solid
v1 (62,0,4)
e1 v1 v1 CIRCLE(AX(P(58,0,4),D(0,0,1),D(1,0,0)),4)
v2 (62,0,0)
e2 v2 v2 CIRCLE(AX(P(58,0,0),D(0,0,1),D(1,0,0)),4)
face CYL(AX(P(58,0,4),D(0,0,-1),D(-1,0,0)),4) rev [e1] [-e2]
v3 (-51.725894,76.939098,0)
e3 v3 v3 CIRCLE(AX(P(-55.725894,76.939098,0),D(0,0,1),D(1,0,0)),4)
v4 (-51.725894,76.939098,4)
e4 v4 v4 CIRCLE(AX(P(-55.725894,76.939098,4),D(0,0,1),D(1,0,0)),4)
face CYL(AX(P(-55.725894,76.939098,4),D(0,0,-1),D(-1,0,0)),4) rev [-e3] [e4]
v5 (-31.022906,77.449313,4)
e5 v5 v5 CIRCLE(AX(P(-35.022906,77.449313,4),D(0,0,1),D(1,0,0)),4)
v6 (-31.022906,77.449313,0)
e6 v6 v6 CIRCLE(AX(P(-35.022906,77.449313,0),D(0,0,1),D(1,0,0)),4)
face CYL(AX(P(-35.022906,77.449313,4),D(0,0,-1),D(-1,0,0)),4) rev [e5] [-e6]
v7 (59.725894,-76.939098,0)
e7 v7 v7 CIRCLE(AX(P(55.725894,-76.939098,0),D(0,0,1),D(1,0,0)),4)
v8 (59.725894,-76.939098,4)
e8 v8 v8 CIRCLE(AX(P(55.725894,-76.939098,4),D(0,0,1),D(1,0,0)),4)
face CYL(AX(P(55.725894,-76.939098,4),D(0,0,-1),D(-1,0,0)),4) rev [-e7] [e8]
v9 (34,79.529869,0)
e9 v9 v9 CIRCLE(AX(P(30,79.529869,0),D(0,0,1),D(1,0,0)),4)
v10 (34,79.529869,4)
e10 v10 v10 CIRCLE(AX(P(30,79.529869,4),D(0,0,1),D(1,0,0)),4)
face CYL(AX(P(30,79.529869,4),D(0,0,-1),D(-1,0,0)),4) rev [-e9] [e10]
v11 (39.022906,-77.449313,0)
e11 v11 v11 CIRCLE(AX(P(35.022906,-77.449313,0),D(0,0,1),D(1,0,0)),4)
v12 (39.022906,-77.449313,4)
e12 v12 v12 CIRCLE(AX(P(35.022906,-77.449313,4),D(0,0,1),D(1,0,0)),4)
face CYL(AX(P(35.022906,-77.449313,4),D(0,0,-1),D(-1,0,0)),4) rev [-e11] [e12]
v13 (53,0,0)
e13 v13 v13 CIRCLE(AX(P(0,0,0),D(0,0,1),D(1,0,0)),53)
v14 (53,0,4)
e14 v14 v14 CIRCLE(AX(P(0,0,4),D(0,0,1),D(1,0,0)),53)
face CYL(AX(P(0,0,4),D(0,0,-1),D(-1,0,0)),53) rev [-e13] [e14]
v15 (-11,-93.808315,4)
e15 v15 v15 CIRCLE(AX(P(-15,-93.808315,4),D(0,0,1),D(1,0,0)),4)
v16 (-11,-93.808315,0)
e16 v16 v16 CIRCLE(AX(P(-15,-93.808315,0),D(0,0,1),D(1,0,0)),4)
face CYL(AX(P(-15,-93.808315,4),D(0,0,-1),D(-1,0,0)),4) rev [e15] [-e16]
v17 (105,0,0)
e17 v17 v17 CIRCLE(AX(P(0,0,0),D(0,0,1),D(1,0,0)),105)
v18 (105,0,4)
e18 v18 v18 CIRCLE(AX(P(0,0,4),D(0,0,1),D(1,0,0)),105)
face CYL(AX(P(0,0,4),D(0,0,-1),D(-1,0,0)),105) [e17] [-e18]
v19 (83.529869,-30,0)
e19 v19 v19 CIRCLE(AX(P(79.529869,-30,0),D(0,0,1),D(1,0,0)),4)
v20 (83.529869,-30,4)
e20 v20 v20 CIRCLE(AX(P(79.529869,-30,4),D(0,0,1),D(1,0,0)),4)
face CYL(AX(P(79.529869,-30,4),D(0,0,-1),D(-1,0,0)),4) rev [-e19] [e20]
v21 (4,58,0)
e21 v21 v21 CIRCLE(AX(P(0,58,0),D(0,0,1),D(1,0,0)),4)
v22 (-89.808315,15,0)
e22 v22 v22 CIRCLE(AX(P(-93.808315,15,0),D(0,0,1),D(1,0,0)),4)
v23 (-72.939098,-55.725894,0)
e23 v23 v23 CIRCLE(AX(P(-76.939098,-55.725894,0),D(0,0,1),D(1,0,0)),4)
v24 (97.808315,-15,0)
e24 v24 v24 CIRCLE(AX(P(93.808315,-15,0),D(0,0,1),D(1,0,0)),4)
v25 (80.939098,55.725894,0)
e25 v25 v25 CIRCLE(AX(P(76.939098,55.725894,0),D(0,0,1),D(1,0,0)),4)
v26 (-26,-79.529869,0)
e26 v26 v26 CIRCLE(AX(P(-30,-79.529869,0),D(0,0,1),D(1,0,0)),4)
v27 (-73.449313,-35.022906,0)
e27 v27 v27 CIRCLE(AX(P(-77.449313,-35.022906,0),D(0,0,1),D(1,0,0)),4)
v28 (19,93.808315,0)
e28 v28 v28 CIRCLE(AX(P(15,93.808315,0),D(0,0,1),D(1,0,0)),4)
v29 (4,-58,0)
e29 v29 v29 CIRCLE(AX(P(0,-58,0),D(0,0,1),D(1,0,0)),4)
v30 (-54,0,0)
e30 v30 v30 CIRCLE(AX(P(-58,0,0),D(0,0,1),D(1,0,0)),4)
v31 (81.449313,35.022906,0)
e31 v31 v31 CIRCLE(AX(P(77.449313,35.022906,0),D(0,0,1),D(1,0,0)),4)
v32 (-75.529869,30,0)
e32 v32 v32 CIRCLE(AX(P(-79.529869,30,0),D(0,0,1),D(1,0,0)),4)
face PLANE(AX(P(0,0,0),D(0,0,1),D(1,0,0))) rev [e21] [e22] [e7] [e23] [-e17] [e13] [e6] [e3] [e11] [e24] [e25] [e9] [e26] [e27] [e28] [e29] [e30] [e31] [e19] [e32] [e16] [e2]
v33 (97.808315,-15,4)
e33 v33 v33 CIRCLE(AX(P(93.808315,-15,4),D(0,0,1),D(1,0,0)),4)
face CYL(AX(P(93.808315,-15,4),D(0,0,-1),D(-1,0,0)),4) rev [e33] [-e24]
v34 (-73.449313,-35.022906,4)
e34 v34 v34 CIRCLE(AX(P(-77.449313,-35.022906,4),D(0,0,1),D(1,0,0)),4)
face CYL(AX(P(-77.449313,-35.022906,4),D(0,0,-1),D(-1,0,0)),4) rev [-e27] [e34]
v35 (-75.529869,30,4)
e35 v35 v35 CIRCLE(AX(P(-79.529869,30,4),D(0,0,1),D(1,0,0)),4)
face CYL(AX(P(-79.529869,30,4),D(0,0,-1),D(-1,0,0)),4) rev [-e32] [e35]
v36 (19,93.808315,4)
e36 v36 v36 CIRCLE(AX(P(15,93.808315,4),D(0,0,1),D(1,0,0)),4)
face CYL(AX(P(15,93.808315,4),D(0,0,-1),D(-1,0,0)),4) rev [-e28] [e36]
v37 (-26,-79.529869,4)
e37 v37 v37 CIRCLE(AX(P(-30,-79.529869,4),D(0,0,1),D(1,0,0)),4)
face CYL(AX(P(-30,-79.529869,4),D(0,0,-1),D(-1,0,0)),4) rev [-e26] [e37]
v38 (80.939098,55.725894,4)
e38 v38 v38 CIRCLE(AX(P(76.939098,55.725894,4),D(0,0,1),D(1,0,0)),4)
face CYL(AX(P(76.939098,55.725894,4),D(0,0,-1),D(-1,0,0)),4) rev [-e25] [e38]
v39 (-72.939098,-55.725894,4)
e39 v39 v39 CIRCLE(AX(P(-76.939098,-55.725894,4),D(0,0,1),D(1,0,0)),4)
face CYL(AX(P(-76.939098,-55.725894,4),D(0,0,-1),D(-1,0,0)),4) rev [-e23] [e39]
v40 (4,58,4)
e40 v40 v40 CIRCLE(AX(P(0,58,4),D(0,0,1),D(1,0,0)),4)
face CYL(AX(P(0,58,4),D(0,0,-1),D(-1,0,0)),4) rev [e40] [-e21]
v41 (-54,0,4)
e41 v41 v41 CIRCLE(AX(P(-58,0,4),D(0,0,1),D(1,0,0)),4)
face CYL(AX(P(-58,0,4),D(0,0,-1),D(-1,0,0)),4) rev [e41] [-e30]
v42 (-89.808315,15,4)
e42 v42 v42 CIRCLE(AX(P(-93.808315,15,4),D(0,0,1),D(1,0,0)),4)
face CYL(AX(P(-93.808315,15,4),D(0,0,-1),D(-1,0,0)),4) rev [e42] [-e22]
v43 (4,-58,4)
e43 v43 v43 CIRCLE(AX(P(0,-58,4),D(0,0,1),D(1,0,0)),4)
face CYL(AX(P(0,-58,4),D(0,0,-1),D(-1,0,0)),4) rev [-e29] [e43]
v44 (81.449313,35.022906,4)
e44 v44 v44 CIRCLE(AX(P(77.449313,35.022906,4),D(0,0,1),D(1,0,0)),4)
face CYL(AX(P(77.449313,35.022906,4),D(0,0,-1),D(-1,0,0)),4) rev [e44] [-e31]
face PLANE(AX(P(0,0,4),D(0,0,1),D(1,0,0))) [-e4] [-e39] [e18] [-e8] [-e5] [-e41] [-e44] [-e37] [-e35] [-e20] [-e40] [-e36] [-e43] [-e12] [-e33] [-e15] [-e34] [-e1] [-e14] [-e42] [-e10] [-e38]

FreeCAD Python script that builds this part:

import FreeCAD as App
import Part
import Sketcher

V = App.Vector
Q = App.Units.Quantity

doc = App.newDocument("Part")
body = doc.addObject("PartDesign::Body", "Body")

# Sketch on XY plane
sketch1 = doc.addObject("Sketcher::SketchObject", "Sketch")
body.addObject(sketch1)
sketch1.AttachmentSupport = (doc.XY_Plane, [""])
sketch1.MapMode = "FlatFace"
sketch1.addGeometry(Part.Circle(V(0, 0, 0), V(0, 0, 1), 105), False)
sketch1.addGeometry(Part.Circle(V(-76.9, -55.7, 0), V(0, 0, 1), 4), False)
sketch1.addGeometry(Part.Circle(V(-30, -79.5, 0), V(0, 0, 1), 4), False)
sketch1.addGeometry(Part.Circle(V(-15, -93.8, 0), V(0, 0, 1), 4), False)
sketch1.addGeometry(Part.Circle(V(-77.4, -35, 0), V(0, 0, 1), 4), False)
sketch1.addGeometry(Part.Circle(V(35, -77.4, 0), V(0, 0, 1), 4), False)
sketch1.addGeometry(Part.Circle(V(0, -58, 0), V(0, 0, 1), 4), False)
sketch1.addGeometry(Part.Circle(V(55.7, -76.9, 0), V(0, 0, 1), 4), False)
sketch1.addGeometry(Part.Circle(V(79.5, -30, 0), V(0, 0, 1), 4), False)
sketch1.addGeometry(Part.Circle(V(93.8, -15, 0), V(0, 0, 1), 4), False)
sketch1.addGeometry(Part.Circle(V(-93.8, 15, 0), V(0, 0, 1), 4), False)
sketch1.addGeometry(Part.Circle(V(-58, 0, 0), V(0, 0, 1), 4), False)
sketch1.addGeometry(Part.Circle(V(-79.5, 30, 0), V(0, 0, 1), 4), False)
sketch1.addGeometry(Part.Circle(V(-55.7, 76.9, 0), V(0, 0, 1), 4), False)
sketch1.addGeometry(Part.Circle(V(-35, 77.4, 0), V(0, 0, 1), 4), False)
sketch1.addGeometry(Part.Circle(V(0, 0, 0), V(0, 0, 1), 53), False)
sketch1.addGeometry(Part.Circle(V(58, 0, 0), V(0, 0, 1), 4), False)
sketch1.addGeometry(Part.Circle(V(77.4, 35, 0), V(0, 0, 1), 4), False)
sketch1.addGeometry(Part.Circle(V(0, 58, 0), V(0, 0, 1), 4), False)
sketch1.addGeometry(Part.Circle(V(15, 93.8, 0), V(0, 0, 1), 4), False)
sketch1.addGeometry(Part.Circle(V(30, 79.5, 0), V(0, 0, 1), 4), False)
sketch1.addGeometry(Part.Circle(V(76.9, 55.7, 0), V(0, 0, 1), 4), False)
sketch1.addConstraint(Sketcher.Constraint("Coincident", 0, 3, -1, 1))
sketch1.addConstraint(Sketcher.Constraint("Coincident", 15, 3, -1, 1))
sketch1.addConstraint(Sketcher.Constraint("Equal", 1, 2))
sketch1.addConstraint(Sketcher.Constraint("Equal", 2, 3))
sketch1.addConstraint(Sketcher.Constraint("Equal", 3, 4))
sketch1.addConstraint(Sketcher.Constraint("Equal", 4, 5))
sketch1.addConstraint(Sketcher.Constraint("Equal", 5, 6))
sketch1.addConstraint(Sketcher.Constraint("Equal", 6, 7))
sketch1.addConstraint(Sketcher.Constraint("Equal", 7, 8))
sketch1.addConstraint(Sketcher.Constraint("Equal", 8, 9))
sketch1.addConstraint(Sketcher.Constraint("Equal", 9, 10))
sketch1.addConstraint(Sketcher.Constraint("Equal", 10, 11))
sketch1.addConstraint(Sketcher.Constraint("Equal", 11, 12))
sketch1.addConstraint(Sketcher.Constraint("Equal", 12, 13))
sketch1.addConstraint(Sketcher.Constraint("Equal", 13, 14))
sketch1.addConstraint(Sketcher.Constraint("Equal", 14, 16))
sketch1.addConstraint(Sketcher.Constraint("Equal", 16, 17))
sketch1.addConstraint(Sketcher.Constraint("Equal", 17, 18))
sketch1.addConstraint(Sketcher.Constraint("Equal", 18, 19))
sketch1.addConstraint(Sketcher.Constraint("Equal", 19, 20))
sketch1.addConstraint(Sketcher.Constraint("Equal", 20, 21))
sketch1.addConstraint(Sketcher.Constraint("Symmetric", 9, 3, 10, 3, -1, 1))
sketch1.addConstraint(Sketcher.Constraint("Symmetric", 8, 3, 12, 3, -1, 1))
sketch1.addConstraint(Sketcher.Constraint("Symmetric", 7, 3, 13, 3, -1, 1))
sketch1.addConstraint(Sketcher.Constraint("Symmetric", 5, 3, 14, 3, -1, 1))
sketch1.addConstraint(Sketcher.Constraint("Symmetric", 11, 3, 16, 3, -1, 1))
sketch1.addConstraint(Sketcher.Constraint("Symmetric", 4, 3, 17, 3, -1, 1))
sketch1.addConstraint(Sketcher.Constraint("Symmetric", 6, 3, 18, 3, -1, 1))
sketch1.addConstraint(Sketcher.Constraint("Symmetric", 3, 3, 19, 3, -1, 1))
sketch1.addConstraint(Sketcher.Constraint("Symmetric", 2, 3, 20, 3, -1, 1))
sketch1.addConstraint(Sketcher.Constraint("Symmetric", 1, 3, 21, 3, -1, 1))
sketch1.addConstraint(Sketcher.Constraint("PointOnObject", 6, 3, -2))
sketch1.addConstraint(Sketcher.Constraint("PointOnObject", 11, 3, -1))
sketch1.addConstraint(Sketcher.Constraint("Diameter", 0, Q("210 mm")))
sketch1.addConstraint(Sketcher.Constraint("Diameter", 1, Q("8 mm")))
sketch1.addConstraint(Sketcher.Constraint("Diameter", 15, Q("106 mm")))
sketch1.addConstraint(Sketcher.Constraint("DistanceX", 2, 3, -1, 1, Q("30 mm")))
sketch1.addConstraint(Sketcher.Constraint("DistanceX", 3, 3, -1, 1, Q("15 mm")))
sketch1.addConstraint(Sketcher.Constraint("DistanceY", 6, 3, -1, 1, Q("58 mm")))
sketch1.addConstraint(Sketcher.Constraint("DistanceY", 8, 3, -1, 1, Q("30 mm")))
sketch1.addConstraint(Sketcher.Constraint("DistanceY", 9, 3, -1, 1, Q("15 mm")))
sketch1.addConstraint(Sketcher.Constraint("DistanceX", 11, 3, -1, 1, Q("58 mm")))
sketch1.addConstraint(Sketcher.Constraint("DistanceY", 2, 3, -1, 1, Q("79.529869 mm")))
sketch1.addConstraint(Sketcher.Constraint("DistanceX", -1, 1, 8, 3, Q("79.529869 mm")))
sketch1.addConstraint(Sketcher.Constraint("DistanceY", 3, 3, 1, 3, Q("38.082421 mm")))
sketch1.addConstraint(Sketcher.Constraint("DistanceY", 1, 3, 4, 3, Q("20.702988 mm")))
sketch1.addConstraint(Sketcher.Constraint("DistanceY", 5, 3, 1, 3, Q("21.723419 mm")))
sketch1.addConstraint(Sketcher.Constraint("DistanceX", 4, 3, 5, 3, Q("112.472219 mm")))
sketch1.addConstraint(Sketcher.Constraint("DistanceX", 5, 3, 7, 3, Q("20.702988 mm")))
sketch1.addConstraint(Sketcher.Constraint("DistanceY", 2, 3, 7, 3, Q("2.590771 mm")))
sketch1.addConstraint(Sketcher.Constraint("DistanceX", 7, 3, 9, 3, Q("38.082421 mm")))
sketch1.addConstraint(Sketcher.Constraint("DistanceX", 12, 3, 1, 3, Q("2.590771 mm")))
sketch1.addConstraint(Sketcher.Constraint("DistanceX", 4, 3, 13, 3, Q("21.723419 mm")))
sketch1.addConstraint(Sketcher.Constraint("DistanceY", 1, 3, -1, 1, Q("55.725894 mm")))
pad1 = doc.addObject("PartDesign::Pad", "Pad")
body.addObject(pad1)
pad1.Profile = sketch1
pad1.Length = 4

doc.recompute()
